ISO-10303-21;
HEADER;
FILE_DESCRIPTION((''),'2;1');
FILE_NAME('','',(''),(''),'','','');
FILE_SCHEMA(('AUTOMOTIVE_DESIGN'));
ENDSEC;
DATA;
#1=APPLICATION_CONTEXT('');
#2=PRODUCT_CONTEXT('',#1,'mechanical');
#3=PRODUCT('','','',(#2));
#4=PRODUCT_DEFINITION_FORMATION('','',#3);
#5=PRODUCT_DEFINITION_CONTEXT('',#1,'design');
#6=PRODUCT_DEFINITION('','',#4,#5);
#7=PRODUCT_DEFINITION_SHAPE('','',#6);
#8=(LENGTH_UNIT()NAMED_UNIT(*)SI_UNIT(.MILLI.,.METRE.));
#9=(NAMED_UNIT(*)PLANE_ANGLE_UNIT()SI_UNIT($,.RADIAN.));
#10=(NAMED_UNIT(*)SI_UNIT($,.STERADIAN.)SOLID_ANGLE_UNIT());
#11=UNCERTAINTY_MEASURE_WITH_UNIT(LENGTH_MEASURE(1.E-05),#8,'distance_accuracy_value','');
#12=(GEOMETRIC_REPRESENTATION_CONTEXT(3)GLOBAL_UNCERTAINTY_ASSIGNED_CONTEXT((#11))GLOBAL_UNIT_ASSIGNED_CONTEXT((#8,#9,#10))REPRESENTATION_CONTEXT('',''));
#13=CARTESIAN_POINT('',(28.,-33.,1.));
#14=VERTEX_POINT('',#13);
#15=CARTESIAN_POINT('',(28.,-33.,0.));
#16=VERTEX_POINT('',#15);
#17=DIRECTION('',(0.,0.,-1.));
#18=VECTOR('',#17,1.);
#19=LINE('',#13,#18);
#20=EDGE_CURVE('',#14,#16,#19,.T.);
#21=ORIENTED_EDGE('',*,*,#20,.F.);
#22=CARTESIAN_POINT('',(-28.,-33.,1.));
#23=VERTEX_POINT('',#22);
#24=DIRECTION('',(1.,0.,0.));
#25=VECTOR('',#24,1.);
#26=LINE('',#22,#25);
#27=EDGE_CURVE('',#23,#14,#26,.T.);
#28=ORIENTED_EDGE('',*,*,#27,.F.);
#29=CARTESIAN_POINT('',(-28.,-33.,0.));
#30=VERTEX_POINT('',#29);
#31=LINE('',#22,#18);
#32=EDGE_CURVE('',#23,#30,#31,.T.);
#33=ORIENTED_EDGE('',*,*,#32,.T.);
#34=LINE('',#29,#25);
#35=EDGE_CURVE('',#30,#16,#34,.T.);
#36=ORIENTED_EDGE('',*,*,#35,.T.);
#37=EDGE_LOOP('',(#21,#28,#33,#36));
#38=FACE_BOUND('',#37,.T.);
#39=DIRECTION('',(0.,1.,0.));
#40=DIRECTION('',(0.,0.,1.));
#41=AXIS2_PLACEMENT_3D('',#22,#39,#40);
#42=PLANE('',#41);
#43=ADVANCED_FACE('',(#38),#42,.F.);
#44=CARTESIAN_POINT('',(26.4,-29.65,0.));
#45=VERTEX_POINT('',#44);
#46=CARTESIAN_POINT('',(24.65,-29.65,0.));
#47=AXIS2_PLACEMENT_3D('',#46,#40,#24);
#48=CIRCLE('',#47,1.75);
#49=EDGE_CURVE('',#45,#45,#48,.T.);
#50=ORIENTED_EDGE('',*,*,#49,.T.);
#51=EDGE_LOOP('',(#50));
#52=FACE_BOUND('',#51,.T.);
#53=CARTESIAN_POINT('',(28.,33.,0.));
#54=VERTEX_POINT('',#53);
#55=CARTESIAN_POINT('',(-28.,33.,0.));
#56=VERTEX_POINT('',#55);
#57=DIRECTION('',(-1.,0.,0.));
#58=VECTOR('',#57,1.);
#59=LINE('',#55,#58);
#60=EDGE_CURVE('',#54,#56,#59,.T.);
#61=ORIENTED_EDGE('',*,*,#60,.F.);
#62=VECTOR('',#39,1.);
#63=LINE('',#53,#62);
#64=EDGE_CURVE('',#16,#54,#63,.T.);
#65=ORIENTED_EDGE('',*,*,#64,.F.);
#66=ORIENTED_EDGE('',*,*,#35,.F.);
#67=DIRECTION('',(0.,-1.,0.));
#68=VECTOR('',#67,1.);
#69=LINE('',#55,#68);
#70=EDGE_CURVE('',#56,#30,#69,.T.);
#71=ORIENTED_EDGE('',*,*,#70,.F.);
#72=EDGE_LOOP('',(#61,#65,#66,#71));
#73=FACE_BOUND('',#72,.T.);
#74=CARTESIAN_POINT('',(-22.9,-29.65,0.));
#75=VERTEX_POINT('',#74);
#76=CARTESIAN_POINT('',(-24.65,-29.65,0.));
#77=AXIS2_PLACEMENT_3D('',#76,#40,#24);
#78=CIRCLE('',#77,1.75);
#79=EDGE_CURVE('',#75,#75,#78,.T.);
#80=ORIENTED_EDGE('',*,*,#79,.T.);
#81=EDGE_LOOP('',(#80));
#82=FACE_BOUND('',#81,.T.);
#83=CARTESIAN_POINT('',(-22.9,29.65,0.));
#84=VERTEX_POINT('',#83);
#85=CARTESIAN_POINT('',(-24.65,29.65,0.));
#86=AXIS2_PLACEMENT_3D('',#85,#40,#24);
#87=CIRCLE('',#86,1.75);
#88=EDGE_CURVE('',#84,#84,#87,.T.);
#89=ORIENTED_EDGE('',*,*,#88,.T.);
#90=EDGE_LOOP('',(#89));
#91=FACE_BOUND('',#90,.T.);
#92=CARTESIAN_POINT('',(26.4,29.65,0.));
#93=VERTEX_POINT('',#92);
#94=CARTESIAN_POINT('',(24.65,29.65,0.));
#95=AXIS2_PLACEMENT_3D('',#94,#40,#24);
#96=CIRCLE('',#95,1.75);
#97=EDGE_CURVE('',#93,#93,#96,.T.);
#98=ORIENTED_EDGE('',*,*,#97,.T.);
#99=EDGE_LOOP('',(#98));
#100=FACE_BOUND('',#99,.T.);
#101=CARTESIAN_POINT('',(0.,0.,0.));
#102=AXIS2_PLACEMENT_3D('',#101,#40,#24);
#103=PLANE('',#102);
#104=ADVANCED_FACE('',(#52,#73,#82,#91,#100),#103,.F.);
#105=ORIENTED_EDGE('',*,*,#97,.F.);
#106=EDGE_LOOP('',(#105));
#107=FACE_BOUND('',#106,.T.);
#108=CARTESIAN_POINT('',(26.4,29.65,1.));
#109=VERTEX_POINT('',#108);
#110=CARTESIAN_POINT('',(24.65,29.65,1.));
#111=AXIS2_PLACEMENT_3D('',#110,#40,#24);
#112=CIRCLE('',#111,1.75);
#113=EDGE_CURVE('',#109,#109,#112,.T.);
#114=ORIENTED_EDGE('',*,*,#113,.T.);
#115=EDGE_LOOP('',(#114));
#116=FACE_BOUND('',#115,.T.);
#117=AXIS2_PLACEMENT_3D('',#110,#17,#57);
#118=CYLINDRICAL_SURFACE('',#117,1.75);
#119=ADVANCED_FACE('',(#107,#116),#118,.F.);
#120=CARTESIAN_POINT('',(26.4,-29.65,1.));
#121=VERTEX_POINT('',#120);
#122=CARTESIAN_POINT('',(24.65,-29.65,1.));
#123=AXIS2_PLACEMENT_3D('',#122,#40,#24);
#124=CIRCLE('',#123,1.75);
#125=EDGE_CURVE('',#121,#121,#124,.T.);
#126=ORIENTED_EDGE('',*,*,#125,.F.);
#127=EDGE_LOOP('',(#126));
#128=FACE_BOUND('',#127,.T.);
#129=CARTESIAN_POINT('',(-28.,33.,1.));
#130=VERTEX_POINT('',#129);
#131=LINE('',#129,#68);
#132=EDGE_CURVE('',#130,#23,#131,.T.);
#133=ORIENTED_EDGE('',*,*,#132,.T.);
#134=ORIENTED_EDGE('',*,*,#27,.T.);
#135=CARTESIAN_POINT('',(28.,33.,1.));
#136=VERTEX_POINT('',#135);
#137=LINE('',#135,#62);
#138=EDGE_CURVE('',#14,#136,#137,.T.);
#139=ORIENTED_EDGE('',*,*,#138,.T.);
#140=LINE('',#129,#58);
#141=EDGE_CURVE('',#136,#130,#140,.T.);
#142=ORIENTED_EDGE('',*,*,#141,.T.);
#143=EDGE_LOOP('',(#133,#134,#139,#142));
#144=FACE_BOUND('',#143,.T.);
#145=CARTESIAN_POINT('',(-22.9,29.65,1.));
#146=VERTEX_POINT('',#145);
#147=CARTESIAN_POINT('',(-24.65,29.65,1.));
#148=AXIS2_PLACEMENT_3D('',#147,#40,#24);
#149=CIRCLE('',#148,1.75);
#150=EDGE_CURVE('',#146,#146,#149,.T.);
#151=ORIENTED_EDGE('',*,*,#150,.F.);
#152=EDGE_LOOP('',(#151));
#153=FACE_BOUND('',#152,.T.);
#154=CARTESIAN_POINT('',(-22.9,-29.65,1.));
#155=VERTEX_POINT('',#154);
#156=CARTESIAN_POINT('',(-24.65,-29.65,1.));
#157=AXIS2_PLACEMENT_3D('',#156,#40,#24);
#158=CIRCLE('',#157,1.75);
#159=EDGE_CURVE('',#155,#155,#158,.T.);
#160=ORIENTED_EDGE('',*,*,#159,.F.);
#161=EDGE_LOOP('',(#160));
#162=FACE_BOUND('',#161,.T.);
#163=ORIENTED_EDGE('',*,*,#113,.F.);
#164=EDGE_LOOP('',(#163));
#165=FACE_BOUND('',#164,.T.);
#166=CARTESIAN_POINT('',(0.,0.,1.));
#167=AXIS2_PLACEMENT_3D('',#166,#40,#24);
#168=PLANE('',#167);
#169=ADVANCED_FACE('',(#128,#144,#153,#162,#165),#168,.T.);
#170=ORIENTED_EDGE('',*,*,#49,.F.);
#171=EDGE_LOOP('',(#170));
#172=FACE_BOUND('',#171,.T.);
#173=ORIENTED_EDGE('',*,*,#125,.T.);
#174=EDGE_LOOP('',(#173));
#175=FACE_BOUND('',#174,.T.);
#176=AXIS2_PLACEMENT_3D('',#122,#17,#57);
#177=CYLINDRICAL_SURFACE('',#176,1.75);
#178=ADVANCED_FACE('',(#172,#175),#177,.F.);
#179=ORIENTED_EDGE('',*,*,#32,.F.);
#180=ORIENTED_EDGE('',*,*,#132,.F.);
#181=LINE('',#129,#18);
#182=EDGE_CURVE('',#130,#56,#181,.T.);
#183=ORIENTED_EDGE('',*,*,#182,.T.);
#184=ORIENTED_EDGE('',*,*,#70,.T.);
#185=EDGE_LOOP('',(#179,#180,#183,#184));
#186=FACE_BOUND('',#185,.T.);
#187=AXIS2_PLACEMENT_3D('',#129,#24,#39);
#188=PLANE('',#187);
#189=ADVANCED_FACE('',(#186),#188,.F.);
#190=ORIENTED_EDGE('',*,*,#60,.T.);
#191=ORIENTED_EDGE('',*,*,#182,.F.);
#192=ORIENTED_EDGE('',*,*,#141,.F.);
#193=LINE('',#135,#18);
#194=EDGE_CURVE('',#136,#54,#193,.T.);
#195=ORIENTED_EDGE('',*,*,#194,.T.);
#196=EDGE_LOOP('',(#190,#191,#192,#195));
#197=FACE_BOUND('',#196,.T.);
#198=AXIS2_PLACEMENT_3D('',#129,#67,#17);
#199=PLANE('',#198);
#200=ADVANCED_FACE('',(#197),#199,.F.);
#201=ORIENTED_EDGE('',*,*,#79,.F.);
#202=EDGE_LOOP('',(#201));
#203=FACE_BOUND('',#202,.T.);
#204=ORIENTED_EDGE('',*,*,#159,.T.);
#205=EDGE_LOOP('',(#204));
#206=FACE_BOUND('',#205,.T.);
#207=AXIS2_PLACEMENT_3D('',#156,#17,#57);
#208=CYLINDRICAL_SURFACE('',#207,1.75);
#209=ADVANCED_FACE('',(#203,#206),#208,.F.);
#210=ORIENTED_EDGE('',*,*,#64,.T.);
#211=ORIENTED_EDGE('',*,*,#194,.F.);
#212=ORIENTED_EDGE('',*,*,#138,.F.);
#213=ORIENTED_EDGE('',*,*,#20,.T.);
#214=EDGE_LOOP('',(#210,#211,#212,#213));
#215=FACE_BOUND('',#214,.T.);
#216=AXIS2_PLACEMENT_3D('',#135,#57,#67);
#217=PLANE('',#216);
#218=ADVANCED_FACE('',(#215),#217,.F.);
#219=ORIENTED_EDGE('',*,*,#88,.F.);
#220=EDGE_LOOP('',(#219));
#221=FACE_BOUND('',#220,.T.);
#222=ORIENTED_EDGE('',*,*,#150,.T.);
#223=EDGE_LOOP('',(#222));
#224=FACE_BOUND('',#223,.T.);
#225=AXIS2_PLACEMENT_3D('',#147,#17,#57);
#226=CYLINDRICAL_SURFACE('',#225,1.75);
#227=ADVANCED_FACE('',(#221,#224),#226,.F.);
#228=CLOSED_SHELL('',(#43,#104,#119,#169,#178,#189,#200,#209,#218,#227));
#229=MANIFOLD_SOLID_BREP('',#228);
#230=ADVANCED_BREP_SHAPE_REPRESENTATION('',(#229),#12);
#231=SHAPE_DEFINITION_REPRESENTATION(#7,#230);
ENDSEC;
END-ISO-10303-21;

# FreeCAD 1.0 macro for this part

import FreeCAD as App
import Part
import Sketcher
Q = App.Units.Quantity

doc = App.newDocument("Part")
body = doc.addObject("PartDesign::Body", "Body")

# Sketch on XY plane
sketch1 = body.newObject("Sketcher::SketchObject", "Sketch")
sketch1.AttachmentSupport = (doc.getObject("XY_Plane"), [""])
sketch1.MapMode = "FlatFace"
sketch1.addGeometry(Part.LineSegment(App.Vector(-28, 33, 0), App.Vector(-28, -33, 0)), False)
sketch1.addGeometry(Part.LineSegment(App.Vector(-28, -33, 0), App.Vector(28, -33, 0)), False)
sketch1.addGeometry(Part.LineSegment(App.Vector(28, -33, 0), App.Vector(28, 33, 0)), False)
sketch1.addGeometry(Part.LineSegment(App.Vector(28, 33, 0), App.Vector(-28, 33, 0)), False)
sketch1.addGeometry(Part.Circle(App.Vector(-24.6, -29.6, 0), App.Vector(0, 0, 1), 1.8), False)
sketch1.addGeometry(Part.Circle(App.Vector(24.6, -29.6, 0), App.Vector(0, 0, 1), 1.8), False)
sketch1.addGeometry(Part.Circle(App.Vector(-24.6, 29.6, 0), App.Vector(0, 0, 1), 1.8), False)
sketch1.addGeometry(Part.Circle(App.Vector(24.6, 29.6, 0), App.Vector(0, 0, 1), 1.8), False)
sketch1.addConstraint(Sketcher.Constraint("Coincident", 0, 2, 1, 1))
sketch1.addConstraint(Sketcher.Constraint("Coincident", 1, 2, 2, 1))
sketch1.addConstraint(Sketcher.Constraint("Coincident", 2, 2, 3, 1))
sketch1.addConstraint(Sketcher.Constraint("Coincident", 3, 2, 0, 1))
sketch1.addConstraint(Sketcher.Constraint("Vertical", 0))
sketch1.addConstraint(Sketcher.Constraint("Horizontal", 1))
sketch1.addConstraint(Sketcher.Constraint("Vertical", 2))
sketch1.addConstraint(Sketcher.Constraint("Horizontal", 3))
sketch1.addConstraint(Sketcher.Constraint("Equal", 4, 5))
sketch1.addConstraint(Sketcher.Constraint("Equal", 5, 6))
sketch1.addConstraint(Sketcher.Constraint("Equal", 6, 7))
sketch1.addConstraint(Sketcher.Constraint("Symmetric", 5, 3, 6, 3, -1, 1))
sketch1.addConstraint(Sketcher.Constraint("Symmetric", 4, 3, 7, 3, -1, 1))
sketch1.addConstraint(Sketcher.Constraint("Symmetric", 0, 2, 2, 2, -1, 1))
sketch1.addConstraint(Sketcher.Constraint("Symmetric", 4, 3, 5, 3, -2))
sketch1.addConstraint(Sketcher.Constraint("Diameter", 4, Q("3.5 mm")))
sketch1.addConstraint(Sketcher.Constraint("DistanceX", 1, 1, 1, 2, Q("56 mm")))
sketch1.addConstraint(Sketcher.Constraint("DistanceY", 0, 2, 0, 1, Q("66 mm")))
sketch1.addConstraint(Sketcher.Constraint("DistanceX", 4, 3, 5, 3, Q("49.3 mm")))
sketch1.addConstraint(Sketcher.Constraint("DistanceY", 4, 3, 6, 3, Q("59.3 mm")))
pad1 = body.newObject("PartDesign::Pad", "Pad")
pad1.Profile = sketch1
pad1.Length = 1

doc.recompute()
